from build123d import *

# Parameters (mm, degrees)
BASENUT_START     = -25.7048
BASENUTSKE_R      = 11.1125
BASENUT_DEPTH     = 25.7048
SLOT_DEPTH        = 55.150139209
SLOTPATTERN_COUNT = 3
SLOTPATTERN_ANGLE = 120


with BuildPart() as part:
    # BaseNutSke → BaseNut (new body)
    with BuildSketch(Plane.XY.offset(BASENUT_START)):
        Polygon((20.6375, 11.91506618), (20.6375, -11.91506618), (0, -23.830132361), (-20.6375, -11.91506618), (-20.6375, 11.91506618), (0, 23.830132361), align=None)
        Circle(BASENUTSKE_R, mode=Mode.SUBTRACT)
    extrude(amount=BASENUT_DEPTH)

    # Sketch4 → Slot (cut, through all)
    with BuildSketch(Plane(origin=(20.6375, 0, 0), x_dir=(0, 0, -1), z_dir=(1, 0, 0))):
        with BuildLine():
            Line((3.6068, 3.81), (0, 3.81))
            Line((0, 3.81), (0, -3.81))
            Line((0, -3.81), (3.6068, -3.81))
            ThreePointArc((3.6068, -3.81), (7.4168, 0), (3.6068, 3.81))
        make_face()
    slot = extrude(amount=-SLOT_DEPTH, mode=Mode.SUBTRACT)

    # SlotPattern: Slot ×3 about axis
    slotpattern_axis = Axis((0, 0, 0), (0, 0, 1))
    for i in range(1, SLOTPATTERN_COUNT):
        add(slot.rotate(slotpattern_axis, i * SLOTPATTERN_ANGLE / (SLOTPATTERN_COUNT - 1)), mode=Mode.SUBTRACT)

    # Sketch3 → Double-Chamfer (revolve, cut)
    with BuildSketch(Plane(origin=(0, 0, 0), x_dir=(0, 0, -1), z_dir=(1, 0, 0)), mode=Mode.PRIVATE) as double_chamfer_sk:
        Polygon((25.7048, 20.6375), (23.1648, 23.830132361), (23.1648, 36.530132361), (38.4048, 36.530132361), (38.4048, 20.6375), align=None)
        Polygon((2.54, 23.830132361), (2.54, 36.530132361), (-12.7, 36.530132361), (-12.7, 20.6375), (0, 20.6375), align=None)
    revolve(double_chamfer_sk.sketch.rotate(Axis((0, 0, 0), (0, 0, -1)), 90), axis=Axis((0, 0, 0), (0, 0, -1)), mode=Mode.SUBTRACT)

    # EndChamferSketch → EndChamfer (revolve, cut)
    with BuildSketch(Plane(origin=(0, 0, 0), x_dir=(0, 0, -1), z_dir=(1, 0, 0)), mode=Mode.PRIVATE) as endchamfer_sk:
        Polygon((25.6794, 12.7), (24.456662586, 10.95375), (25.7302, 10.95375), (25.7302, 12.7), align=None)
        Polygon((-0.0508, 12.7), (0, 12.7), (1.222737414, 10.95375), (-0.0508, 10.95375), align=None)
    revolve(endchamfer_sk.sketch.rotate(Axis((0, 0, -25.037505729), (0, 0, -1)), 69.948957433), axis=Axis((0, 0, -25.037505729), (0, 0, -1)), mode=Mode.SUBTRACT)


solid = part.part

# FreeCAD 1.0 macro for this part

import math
import FreeCAD as App
import Part
import Sketcher
Q = App.Units.Quantity

doc = App.newDocument("Part")
params = doc.addObject("Spreadsheet::Sheet", "Params")
for row, (alias, value) in enumerate([
    ("sketch1_diameter", "0.875 in"),
    ("pad1_length", "1.012 in"),
    ("sketch2_radius", "0.15 in"),
    ("sketch2_height", "0.142 in"),
    ("sketch3_width", "0.5 in"),
    ("sketch3_height", "0.6 in"),
    ("groove_angle", "360 deg"),
    ("sketch4_height", "0.002 in"),
    ("groove2_angle", "360 deg"),
], start=1):
    params.set(f"A{row}", alias)
    params.set(f"B{row}", "=" + value)
    params.setAlias(f"B{row}", alias)

body = doc.addObject("PartDesign::Body", "Body")

# Sketch on XY plane
sketch1 = doc.addObject("Sketcher::SketchObject", "Sketch")
body.addObject(sketch1)
sketch1.AttachmentSupport = (doc.XY_Plane, [""])
sketch1.MapMode = "FlatFace"
sketch1.AttachmentOffset = App.Placement(App.Vector(0, 0, -1.012 * 25.4), App.Rotation())
sketch1.addGeometry([
    Part.LineSegment(App.Vector(20.6375, -11.915066, 0), App.Vector(20.6375, 11.915066, 0)),  # 0
    Part.LineSegment(App.Vector(20.6375, 11.915066, 0), App.Vector(0, 23.830132, 0)),  # 1
    Part.LineSegment(App.Vector(0, 23.830132, 0), App.Vector(-20.6375, 11.915066, 0)),  # 2
    Part.LineSegment(App.Vector(-20.6375, 11.915066, 0), App.Vector(-20.6375, -11.915066, 0)),  # 3
    Part.LineSegment(App.Vector(-20.6375, -11.915066, 0), App.Vector(0, -23.830132, 0)),  # 4
    Part.LineSegment(App.Vector(0, -23.830132, 0), App.Vector(20.6375, -11.915066, 0)),  # 5
    Part.Circle(App.Vector(0, 0, 0), App.Vector(0, 0, 1), 11.1125),  # 6
], False)
sketch1.addConstraint([
    Sketcher.Constraint("Coincident", 0, 2, 1, 1),
    Sketcher.Constraint("Coincident", 1, 2, 2, 1),
    Sketcher.Constraint("Coincident", 2, 2, 3, 1),
    Sketcher.Constraint("Coincident", 3, 2, 4, 1),
    Sketcher.Constraint("Coincident", 4, 2, 5, 1),
    Sketcher.Constraint("Coincident", 5, 2, 0, 1),
    Sketcher.Constraint("Vertical", 0),
    Sketcher.Constraint("Vertical", 3),
    Sketcher.Constraint("Coincident", 6, 3, -1, 1),
    Sketcher.Constraint("Symmetric", 0, 2, 3, 2, -1, 1),
    Sketcher.Constraint("Symmetric", 1, 2, 4, 2, -1, 1),
    Sketcher.Constraint("PointOnObject", 1, 2, -2),
    Sketcher.Constraint("Parallel", 2, 5),
    Sketcher.Constraint("Horizontal", 0, 2, 2, 2),
    Sketcher.Constraint("Diameter", 6, Q("0.875 in")),
    Sketcher.Constraint("Angle", 1, Q("150 deg")),
    Sketcher.Constraint("DistanceX", -1, 1, 0, 2, Q("0.8125 in")),
    Sketcher.Constraint("DistanceY", 3, 2, 1, 2, Q("35.745199 mm")),
])
sketch1.setExpression("Constraints[14]", "Params.sketch1_diameter")
pad1 = doc.addObject("PartDesign::Pad", "Pad")
body.addObject(pad1)
pad1.Profile = sketch1
pad1.setExpression("Length", "Params.pad1_length")

# Sketch on YZ plane
sketch2 = doc.addObject("Sketcher::SketchObject", "Sketch001")
body.addObject(sketch2)
sketch2.AttachmentSupport = (doc.YZ_Plane, [""])
sketch2.MapMode = "FlatFace"
sketch2.AttachmentOffset = App.Placement(App.Vector(0, 0, 0.8125 * 25.4), App.Rotation())
sketch2.addGeometry([
    Part.LineSegment(App.Vector(3.81, -3.6068, 0), App.Vector(3.81, 0, 0)),
    Part.LineSegment(App.Vector(3.81, 0, 0), App.Vector(-3.81, 0, 0)),
    Part.LineSegment(App.Vector(-3.81, 0, 0), App.Vector(-3.81, -3.6068, 0)),
    Part.ArcOfCircle(Part.Circle(App.Vector(0, -3.6068, 0), App.Vector(0, 0, 1), 3.81), math.radians(180), math.radians(360)),
], False)
sketch2.addConstraint([
    Sketcher.Constraint("Coincident", 0, 2, 1, 1),
    Sketcher.Constraint("Coincident", 1, 2, 2, 1),
    Sketcher.Constraint("Tangent", 2, 2, 3, 1),
    Sketcher.Constraint("Tangent", 3, 2, 0, 1),
    Sketcher.Constraint("Vertical", 0),
    Sketcher.Constraint("Horizontal", 1),
    Sketcher.Constraint("Vertical", 2),
    Sketcher.Constraint("Symmetric", 0, 2, 1, 2, -1, 1),
    Sketcher.Constraint("Radius", 3, Q("0.15 in")),
    Sketcher.Constraint("DistanceY", 0, 1, 0, 2, Q("0.142 in")),
])
sketch2.setExpression("Constraints[8]", "Params.sketch2_radius")
sketch2.setExpression("Constraints[9]", "Params.sketch2_height")
pocket1 = doc.addObject("PartDesign::Pocket", "Pocket")
body.addObject(pocket1)
pocket1.Profile = sketch2
pocket1.Type = "ThroughAll"
doc.recompute()

polarpattern = doc.addObject("PartDesign::PolarPattern", "PolarPattern")
body.addObject(polarpattern)
polarpattern.Originals = [pocket1]
polarpattern.Axis = (doc.Z_Axis, [""])
polarpattern.Angle = 120
polarpattern.Occurrences = 3
body.Tip = polarpattern

# Sketch on YZ plane
sketch3 = doc.addObject("Sketcher::SketchObject", "Sketch002")
body.addObject(sketch3)
sketch3.AttachmentSupport = (doc.YZ_Plane, [""])
sketch3.MapMode = "FlatFace"
sketch3.addGeometry([
    Part.LineSegment(App.Vector(23.830132, -23.1648, 0), App.Vector(20.6375, -25.7048, 0)),  # 0
    Part.LineSegment(App.Vector(20.6375, -25.7048, 0), App.Vector(20.6375, -38.4048, 0)),  # 1
    Part.LineSegment(App.Vector(20.6375, -38.4048, 0), App.Vector(36.530132, -38.4048, 0)),  # 2
    Part.LineSegment(App.Vector(36.530132, -38.4048, 0), App.Vector(36.530132, -23.1648, 0)),  # 3
    Part.LineSegment(App.Vector(36.530132, -23.1648, 0), App.Vector(23.830132, -23.1648, 0)),  # 4
    Part.LineSegment(App.Vector(23.830132, -2.54, 0), App.Vector(36.530132, -2.54, 0)),  # 5
    Part.LineSegment(App.Vector(36.530132, -2.54, 0), App.Vector(36.530132, 12.7, 0)),  # 6
    Part.LineSegment(App.Vector(36.530132, 12.7, 0), App.Vector(20.6375, 12.7, 0)),  # 7
    Part.LineSegment(App.Vector(20.6375, 12.7, 0), App.Vector(20.6375, 0, 0)),  # 8
    Part.LineSegment(App.Vector(20.6375, 0, 0), App.Vector(23.830132, -2.54, 0)),  # 9
], False)
sketch3.addConstraint([
    Sketcher.Constraint("Coincident", 0, 2, 1, 1),
    Sketcher.Constraint("Coincident", 1, 2, 2, 1),
    Sketcher.Constraint("Coincident", 2, 2, 3, 1),
    Sketcher.Constraint("Coincident", 3, 2, 4, 1),
    Sketcher.Constraint("Coincident", 4, 2, 0, 1),
    Sketcher.Constraint("Coincident", 5, 2, 6, 1),
    Sketcher.Constraint("Coincident", 6, 2, 7, 1),
    Sketcher.Constraint("Coincident", 7, 2, 8, 1),
    Sketcher.Constraint("Coincident", 8, 2, 9, 1),
    Sketcher.Constraint("Coincident", 9, 2, 5, 1),
    Sketcher.Constraint("Vertical", 1),
    Sketcher.Constraint("Horizontal", 2),
    Sketcher.Constraint("Vertical", 3),
    Sketcher.Constraint("Horizontal", 4),
    Sketcher.Constraint("Horizontal", 5),
    Sketcher.Constraint("Vertical", 6),
    Sketcher.Constraint("Horizontal", 7),
    Sketcher.Constraint("Vertical", 8),
    Sketcher.Constraint("PointOnObject", 8, 2, -1),
    Sketcher.Constraint("Vertical", 3, 2, 5, 2),
    Sketcher.Constraint("Vertical", 1, 2, 7, 2),
    Sketcher.Constraint("Vertical", 4, 2, 9, 2),
    Sketcher.Constraint("Equal", 5, 1),
    Sketcher.Constraint("Equal", 3, 6),
    Sketcher.Constraint("Equal", 1, 8),
    Sketcher.Constraint("DistanceX", 4, 2, 4, 1, Q("0.5 in")),
    Sketcher.Constraint("DistanceY", 3, 1, 3, 2, Q("0.6 in")),
    Sketcher.Constraint("DistanceX", -1, 1, 0, 2, Q("0.8125 in")),
    Sketcher.Constraint("DistanceY", 0, 2, -1, 1, Q("1.012 in")),
    Sketcher.Constraint("DistanceX", 2, 1, 2, 2, Q("15.892632 mm")),
])
sketch3.setExpression("Constraints[25]", "Params.sketch3_width")
sketch3.setExpression("Constraints[26]", "Params.sketch3_height")
groove = doc.addObject("PartDesign::Groove", "Groove")
body.addObject(groove)
groove.Profile = sketch3
groove.ReferenceAxis = (sketch3, ["V_Axis"])
groove.setExpression("Angle", "Params.groove_angle")

# Sketch on YZ plane
sketch4 = doc.addObject("Sketcher::SketchObject", "Sketch003")
body.addObject(sketch4)
sketch4.AttachmentSupport = (doc.YZ_Plane, [""])
sketch4.MapMode = "FlatFace"
sketch4.addGeometry([
    Part.LineSegment(App.Vector(12.7, -25.6794, 0), App.Vector(10.95375, -24.456663, 0)),  # 0
    Part.LineSegment(App.Vector(10.95375, -24.456663, 0), App.Vector(10.95375, -25.7302, 0)),  # 1
    Part.LineSegment(App.Vector(10.95375, -25.7302, 0), App.Vector(12.7, -25.7302, 0)),  # 2
    Part.LineSegment(App.Vector(12.7, -25.7302, 0), App.Vector(12.7, -25.6794, 0)),  # 3
    Part.LineSegment(App.Vector(12.7, 0, 0), App.Vector(12.7, 0.0508, 0)),  # 4
    Part.LineSegment(App.Vector(12.7, 0.0508, 0), App.Vector(10.95375, 0.0508, 0)),  # 5
    Part.LineSegment(App.Vector(10.95375, 0.0508, 0), App.Vector(10.95375, -1.222737, 0)),  # 6
    Part.LineSegment(App.Vector(10.95375, -1.222737, 0), App.Vector(12.7, 0, 0)),  # 7
], False)
sketch4.addConstraint([
    Sketcher.Constraint("Coincident", 0, 2, 1, 1),
    Sketcher.Constraint("Coincident", 1, 2, 2, 1),
    Sketcher.Constraint("Coincident", 2, 2, 3, 1),
    Sketcher.Constraint("Coincident", 3, 2, 0, 1),
    Sketcher.Constraint("Coincident", 4, 2, 5, 1),
    Sketcher.Constraint("Coincident", 5, 2, 6, 1),
    Sketcher.Constraint("Coincident", 6, 2, 7, 1),
    Sketcher.Constraint("Coincident", 7, 2, 4, 1),
    Sketcher.Constraint("Vertical", 1),
    Sketcher.Constraint("Horizontal", 2),
    Sketcher.Constraint("Vertical", 3),
    Sketcher.Constraint("Vertical", 4),
    Sketcher.Constraint("Horizontal", 5),
    Sketcher.Constraint("Vertical", 6),
    Sketcher.Constraint("PointOnObject", 7, 2, -1),
    Sketcher.Constraint("Vertical", 3, 2, 4, 2),
    Sketcher.Constraint("Vertical", 1, 2, 5, 2),
    Sketcher.Constraint("Equal", 3, 4),
    Sketcher.Constraint("Equal", 1, 6),
    Sketcher.Constraint("Angle", 0, Q("145 deg")),
    Sketcher.Constraint("DistanceX", -1, 1, 2, 2, Q("0.5 in")),
    Sketcher.Constraint("DistanceY", 3, 1, 3, 2, Q("0.002 in")),
    Sketcher.Constraint("DistanceY", 1, 2, -1, 1, Q("1.013 in")),
    Sketcher.Constraint("DistanceX", 2, 1, 2, 2, Q("1.74625 mm")),
])
sketch4.setExpression("Constraints[21]", "Params.sketch4_height")
groove2 = doc.addObject("PartDesign::Groove", "Groove001")
body.addObject(groove2)
groove2.Profile = sketch4
groove2.ReferenceAxis = (sketch4, ["V_Axis"])
groove2.setExpression("Angle", "Params.groove2_angle")

doc.recompute()
